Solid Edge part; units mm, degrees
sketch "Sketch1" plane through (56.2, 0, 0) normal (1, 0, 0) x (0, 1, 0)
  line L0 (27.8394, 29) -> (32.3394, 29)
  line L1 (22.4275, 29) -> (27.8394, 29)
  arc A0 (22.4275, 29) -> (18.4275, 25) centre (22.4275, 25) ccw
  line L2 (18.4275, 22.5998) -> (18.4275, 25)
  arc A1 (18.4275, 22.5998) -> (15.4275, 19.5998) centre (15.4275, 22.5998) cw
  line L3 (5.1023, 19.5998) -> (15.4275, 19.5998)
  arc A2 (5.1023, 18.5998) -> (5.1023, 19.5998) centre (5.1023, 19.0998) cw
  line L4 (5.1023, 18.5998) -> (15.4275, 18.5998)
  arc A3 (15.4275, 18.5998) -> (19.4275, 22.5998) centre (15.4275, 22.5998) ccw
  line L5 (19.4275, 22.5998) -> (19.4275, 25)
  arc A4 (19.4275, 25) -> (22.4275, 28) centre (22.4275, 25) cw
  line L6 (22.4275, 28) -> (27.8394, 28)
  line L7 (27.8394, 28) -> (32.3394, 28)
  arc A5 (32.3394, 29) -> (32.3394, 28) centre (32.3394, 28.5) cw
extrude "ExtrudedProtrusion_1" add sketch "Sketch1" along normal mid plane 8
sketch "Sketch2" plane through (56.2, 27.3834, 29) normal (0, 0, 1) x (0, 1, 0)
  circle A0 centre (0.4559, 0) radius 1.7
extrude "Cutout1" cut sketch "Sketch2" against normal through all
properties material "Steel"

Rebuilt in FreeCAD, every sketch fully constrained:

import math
import FreeCAD as App
import Part
import Sketcher
from FreeCAD import Vector
Q = App.Units.Quantity

doc = App.newDocument("Part")
body = doc.addObject("PartDesign::Body", "Body")

# Sketch on YZ plane
sketch1 = body.newObject("Sketcher::SketchObject", "Sketch")
sketch1.AttachmentSupport = (doc.getObject("YZ_Plane"), [""])
sketch1.MapMode = "FlatFace"
sketch1.AttachmentOffset = App.Placement(Vector(0, 0, 56.2), App.Rotation())
sketch1.addGeometry([
    Part.LineSegment(Vector(32.3394, 29, 0), Vector(22.4275, 29, 0)),  # 0
    Part.ArcOfCircle(Part.Circle(Vector(22.4275, 25, 0), Vector(0, 0, 1), 4), math.radians(90), math.radians(180)),  # 1
    Part.LineSegment(Vector(18.4275, 25, 0), Vector(18.4275, 22.5998, 0)),  # 2
    Part.ArcOfCircle(Part.Circle(Vector(15.4275, 22.5998, 0), Vector(0, 0, 1), 3), math.radians(-90), math.radians(0)),  # 3
    Part.LineSegment(Vector(15.4275, 19.5998, 0), Vector(5.1023, 19.5998, 0)),  # 4
    Part.ArcOfCircle(Part.Circle(Vector(5.1023, 19.0998, 0), Vector(0, 0, 1), 0.5), math.radians(90), math.radians(270)),  # 5
    Part.LineSegment(Vector(5.1023, 18.5998, 0), Vector(15.4275, 18.5998, 0)),  # 6
    Part.ArcOfCircle(Part.Circle(Vector(15.4275, 22.5998, 0), Vector(0, 0, 1), 4), math.radians(-90), math.radians(0)),  # 7
    Part.LineSegment(Vector(19.4275, 22.5998, 0), Vector(19.4275, 25, 0)),  # 8
    Part.ArcOfCircle(Part.Circle(Vector(22.4275, 25, 0), Vector(0, 0, 1), 3), math.radians(90), math.radians(180)),  # 9
    Part.LineSegment(Vector(22.4275, 28, 0), Vector(32.3394, 28, 0)),  # 10
    Part.ArcOfCircle(Part.Circle(Vector(32.3394, 28.5, 0), Vector(0, 0, 1), 0.5), math.radians(-90), math.radians(90)),  # 11
], False)
sketch1.addConstraint([
    Sketcher.Constraint("Tangent", 0, 2, 1, 1),
    Sketcher.Constraint("Tangent", 1, 2, 2, 1),
    Sketcher.Constraint("Tangent", 2, 2, 3, 2),
    Sketcher.Constraint("Tangent", 3, 1, 4, 1),
    Sketcher.Constraint("Tangent", 4, 2, 5, 1),
    Sketcher.Constraint("Tangent", 5, 2, 6, 1),
    Sketcher.Constraint("Tangent", 6, 2, 7, 1),
    Sketcher.Constraint("Tangent", 7, 2, 8, 1),
    Sketcher.Constraint("Tangent", 8, 2, 9, 2),
    Sketcher.Constraint("Tangent", 9, 1, 10, 1),
    Sketcher.Constraint("Tangent", 10, 2, 11, 1),
    Sketcher.Constraint("Tangent", 11, 2, 0, 1),
    Sketcher.Constraint("Horizontal", 0),
    Sketcher.Constraint("Vertical", 2),
    Sketcher.Constraint("Horizontal", 4),
    Sketcher.Constraint("Horizontal", 6),
    Sketcher.Constraint("Vertical", 8),
    Sketcher.Constraint("Horizontal", 10),
    Sketcher.Constraint("Coincident", 7, 3, 3, 3),
    Sketcher.Constraint("Coincident", 9, 3, 1, 3),
    Sketcher.Constraint("Equal", 1, 7),
    Sketcher.Constraint("Radius", 1, Q("4 mm")),
    Sketcher.Constraint("Radius", 3, Q("3 mm")),
    Sketcher.Constraint("DistanceY", -1, 1, 1, 3, Q("25 mm")),
    Sketcher.Constraint("DistanceX", 0, 2, 0, 1, Q("9.912 mm")),
    Sketcher.Constraint("DistanceX", 4, 2, 4, 1, Q("10.3252 mm")),
    Sketcher.Constraint("DistanceY", 2, 2, 2, 1, Q("2.4002 mm")),
    Sketcher.Constraint("DistanceX", -1, 1, 1, 3, Q("22.4275 mm")),
])
pad1 = body.newObject("PartDesign::Pad", "Pad")
pad1.Profile = sketch1
pad1.Length = 8
pad1.Midplane = True

# Sketch on XY plane
sketch2 = body.newObject("Sketcher::SketchObject", "Sketch001")
sketch2.AttachmentSupport = (doc.getObject("XY_Plane"), [""])
sketch2.MapMode = "FlatFace"
sketch2.AttachmentOffset = App.Placement(Vector(0, 0, 29), App.Rotation())
sketch2.addGeometry(Part.Circle(Vector(56.2, 27.8393, 0), Vector(0, 0, 1), 1.7), False)
sketch2.addConstraint([
    Sketcher.Constraint("Diameter", 0, Q("3.4 mm")),
    Sketcher.Constraint("DistanceX", -1, 1, 0, 3, Q("56.2 mm")),
    Sketcher.Constraint("DistanceY", -1, 1, 0, 3, Q("27.8393 mm")),
])
pocket1 = body.newObject("PartDesign::Pocket", "Pocket")
pocket1.Profile = sketch2
pocket1.Type = "ThroughAll"

doc.recompute()
